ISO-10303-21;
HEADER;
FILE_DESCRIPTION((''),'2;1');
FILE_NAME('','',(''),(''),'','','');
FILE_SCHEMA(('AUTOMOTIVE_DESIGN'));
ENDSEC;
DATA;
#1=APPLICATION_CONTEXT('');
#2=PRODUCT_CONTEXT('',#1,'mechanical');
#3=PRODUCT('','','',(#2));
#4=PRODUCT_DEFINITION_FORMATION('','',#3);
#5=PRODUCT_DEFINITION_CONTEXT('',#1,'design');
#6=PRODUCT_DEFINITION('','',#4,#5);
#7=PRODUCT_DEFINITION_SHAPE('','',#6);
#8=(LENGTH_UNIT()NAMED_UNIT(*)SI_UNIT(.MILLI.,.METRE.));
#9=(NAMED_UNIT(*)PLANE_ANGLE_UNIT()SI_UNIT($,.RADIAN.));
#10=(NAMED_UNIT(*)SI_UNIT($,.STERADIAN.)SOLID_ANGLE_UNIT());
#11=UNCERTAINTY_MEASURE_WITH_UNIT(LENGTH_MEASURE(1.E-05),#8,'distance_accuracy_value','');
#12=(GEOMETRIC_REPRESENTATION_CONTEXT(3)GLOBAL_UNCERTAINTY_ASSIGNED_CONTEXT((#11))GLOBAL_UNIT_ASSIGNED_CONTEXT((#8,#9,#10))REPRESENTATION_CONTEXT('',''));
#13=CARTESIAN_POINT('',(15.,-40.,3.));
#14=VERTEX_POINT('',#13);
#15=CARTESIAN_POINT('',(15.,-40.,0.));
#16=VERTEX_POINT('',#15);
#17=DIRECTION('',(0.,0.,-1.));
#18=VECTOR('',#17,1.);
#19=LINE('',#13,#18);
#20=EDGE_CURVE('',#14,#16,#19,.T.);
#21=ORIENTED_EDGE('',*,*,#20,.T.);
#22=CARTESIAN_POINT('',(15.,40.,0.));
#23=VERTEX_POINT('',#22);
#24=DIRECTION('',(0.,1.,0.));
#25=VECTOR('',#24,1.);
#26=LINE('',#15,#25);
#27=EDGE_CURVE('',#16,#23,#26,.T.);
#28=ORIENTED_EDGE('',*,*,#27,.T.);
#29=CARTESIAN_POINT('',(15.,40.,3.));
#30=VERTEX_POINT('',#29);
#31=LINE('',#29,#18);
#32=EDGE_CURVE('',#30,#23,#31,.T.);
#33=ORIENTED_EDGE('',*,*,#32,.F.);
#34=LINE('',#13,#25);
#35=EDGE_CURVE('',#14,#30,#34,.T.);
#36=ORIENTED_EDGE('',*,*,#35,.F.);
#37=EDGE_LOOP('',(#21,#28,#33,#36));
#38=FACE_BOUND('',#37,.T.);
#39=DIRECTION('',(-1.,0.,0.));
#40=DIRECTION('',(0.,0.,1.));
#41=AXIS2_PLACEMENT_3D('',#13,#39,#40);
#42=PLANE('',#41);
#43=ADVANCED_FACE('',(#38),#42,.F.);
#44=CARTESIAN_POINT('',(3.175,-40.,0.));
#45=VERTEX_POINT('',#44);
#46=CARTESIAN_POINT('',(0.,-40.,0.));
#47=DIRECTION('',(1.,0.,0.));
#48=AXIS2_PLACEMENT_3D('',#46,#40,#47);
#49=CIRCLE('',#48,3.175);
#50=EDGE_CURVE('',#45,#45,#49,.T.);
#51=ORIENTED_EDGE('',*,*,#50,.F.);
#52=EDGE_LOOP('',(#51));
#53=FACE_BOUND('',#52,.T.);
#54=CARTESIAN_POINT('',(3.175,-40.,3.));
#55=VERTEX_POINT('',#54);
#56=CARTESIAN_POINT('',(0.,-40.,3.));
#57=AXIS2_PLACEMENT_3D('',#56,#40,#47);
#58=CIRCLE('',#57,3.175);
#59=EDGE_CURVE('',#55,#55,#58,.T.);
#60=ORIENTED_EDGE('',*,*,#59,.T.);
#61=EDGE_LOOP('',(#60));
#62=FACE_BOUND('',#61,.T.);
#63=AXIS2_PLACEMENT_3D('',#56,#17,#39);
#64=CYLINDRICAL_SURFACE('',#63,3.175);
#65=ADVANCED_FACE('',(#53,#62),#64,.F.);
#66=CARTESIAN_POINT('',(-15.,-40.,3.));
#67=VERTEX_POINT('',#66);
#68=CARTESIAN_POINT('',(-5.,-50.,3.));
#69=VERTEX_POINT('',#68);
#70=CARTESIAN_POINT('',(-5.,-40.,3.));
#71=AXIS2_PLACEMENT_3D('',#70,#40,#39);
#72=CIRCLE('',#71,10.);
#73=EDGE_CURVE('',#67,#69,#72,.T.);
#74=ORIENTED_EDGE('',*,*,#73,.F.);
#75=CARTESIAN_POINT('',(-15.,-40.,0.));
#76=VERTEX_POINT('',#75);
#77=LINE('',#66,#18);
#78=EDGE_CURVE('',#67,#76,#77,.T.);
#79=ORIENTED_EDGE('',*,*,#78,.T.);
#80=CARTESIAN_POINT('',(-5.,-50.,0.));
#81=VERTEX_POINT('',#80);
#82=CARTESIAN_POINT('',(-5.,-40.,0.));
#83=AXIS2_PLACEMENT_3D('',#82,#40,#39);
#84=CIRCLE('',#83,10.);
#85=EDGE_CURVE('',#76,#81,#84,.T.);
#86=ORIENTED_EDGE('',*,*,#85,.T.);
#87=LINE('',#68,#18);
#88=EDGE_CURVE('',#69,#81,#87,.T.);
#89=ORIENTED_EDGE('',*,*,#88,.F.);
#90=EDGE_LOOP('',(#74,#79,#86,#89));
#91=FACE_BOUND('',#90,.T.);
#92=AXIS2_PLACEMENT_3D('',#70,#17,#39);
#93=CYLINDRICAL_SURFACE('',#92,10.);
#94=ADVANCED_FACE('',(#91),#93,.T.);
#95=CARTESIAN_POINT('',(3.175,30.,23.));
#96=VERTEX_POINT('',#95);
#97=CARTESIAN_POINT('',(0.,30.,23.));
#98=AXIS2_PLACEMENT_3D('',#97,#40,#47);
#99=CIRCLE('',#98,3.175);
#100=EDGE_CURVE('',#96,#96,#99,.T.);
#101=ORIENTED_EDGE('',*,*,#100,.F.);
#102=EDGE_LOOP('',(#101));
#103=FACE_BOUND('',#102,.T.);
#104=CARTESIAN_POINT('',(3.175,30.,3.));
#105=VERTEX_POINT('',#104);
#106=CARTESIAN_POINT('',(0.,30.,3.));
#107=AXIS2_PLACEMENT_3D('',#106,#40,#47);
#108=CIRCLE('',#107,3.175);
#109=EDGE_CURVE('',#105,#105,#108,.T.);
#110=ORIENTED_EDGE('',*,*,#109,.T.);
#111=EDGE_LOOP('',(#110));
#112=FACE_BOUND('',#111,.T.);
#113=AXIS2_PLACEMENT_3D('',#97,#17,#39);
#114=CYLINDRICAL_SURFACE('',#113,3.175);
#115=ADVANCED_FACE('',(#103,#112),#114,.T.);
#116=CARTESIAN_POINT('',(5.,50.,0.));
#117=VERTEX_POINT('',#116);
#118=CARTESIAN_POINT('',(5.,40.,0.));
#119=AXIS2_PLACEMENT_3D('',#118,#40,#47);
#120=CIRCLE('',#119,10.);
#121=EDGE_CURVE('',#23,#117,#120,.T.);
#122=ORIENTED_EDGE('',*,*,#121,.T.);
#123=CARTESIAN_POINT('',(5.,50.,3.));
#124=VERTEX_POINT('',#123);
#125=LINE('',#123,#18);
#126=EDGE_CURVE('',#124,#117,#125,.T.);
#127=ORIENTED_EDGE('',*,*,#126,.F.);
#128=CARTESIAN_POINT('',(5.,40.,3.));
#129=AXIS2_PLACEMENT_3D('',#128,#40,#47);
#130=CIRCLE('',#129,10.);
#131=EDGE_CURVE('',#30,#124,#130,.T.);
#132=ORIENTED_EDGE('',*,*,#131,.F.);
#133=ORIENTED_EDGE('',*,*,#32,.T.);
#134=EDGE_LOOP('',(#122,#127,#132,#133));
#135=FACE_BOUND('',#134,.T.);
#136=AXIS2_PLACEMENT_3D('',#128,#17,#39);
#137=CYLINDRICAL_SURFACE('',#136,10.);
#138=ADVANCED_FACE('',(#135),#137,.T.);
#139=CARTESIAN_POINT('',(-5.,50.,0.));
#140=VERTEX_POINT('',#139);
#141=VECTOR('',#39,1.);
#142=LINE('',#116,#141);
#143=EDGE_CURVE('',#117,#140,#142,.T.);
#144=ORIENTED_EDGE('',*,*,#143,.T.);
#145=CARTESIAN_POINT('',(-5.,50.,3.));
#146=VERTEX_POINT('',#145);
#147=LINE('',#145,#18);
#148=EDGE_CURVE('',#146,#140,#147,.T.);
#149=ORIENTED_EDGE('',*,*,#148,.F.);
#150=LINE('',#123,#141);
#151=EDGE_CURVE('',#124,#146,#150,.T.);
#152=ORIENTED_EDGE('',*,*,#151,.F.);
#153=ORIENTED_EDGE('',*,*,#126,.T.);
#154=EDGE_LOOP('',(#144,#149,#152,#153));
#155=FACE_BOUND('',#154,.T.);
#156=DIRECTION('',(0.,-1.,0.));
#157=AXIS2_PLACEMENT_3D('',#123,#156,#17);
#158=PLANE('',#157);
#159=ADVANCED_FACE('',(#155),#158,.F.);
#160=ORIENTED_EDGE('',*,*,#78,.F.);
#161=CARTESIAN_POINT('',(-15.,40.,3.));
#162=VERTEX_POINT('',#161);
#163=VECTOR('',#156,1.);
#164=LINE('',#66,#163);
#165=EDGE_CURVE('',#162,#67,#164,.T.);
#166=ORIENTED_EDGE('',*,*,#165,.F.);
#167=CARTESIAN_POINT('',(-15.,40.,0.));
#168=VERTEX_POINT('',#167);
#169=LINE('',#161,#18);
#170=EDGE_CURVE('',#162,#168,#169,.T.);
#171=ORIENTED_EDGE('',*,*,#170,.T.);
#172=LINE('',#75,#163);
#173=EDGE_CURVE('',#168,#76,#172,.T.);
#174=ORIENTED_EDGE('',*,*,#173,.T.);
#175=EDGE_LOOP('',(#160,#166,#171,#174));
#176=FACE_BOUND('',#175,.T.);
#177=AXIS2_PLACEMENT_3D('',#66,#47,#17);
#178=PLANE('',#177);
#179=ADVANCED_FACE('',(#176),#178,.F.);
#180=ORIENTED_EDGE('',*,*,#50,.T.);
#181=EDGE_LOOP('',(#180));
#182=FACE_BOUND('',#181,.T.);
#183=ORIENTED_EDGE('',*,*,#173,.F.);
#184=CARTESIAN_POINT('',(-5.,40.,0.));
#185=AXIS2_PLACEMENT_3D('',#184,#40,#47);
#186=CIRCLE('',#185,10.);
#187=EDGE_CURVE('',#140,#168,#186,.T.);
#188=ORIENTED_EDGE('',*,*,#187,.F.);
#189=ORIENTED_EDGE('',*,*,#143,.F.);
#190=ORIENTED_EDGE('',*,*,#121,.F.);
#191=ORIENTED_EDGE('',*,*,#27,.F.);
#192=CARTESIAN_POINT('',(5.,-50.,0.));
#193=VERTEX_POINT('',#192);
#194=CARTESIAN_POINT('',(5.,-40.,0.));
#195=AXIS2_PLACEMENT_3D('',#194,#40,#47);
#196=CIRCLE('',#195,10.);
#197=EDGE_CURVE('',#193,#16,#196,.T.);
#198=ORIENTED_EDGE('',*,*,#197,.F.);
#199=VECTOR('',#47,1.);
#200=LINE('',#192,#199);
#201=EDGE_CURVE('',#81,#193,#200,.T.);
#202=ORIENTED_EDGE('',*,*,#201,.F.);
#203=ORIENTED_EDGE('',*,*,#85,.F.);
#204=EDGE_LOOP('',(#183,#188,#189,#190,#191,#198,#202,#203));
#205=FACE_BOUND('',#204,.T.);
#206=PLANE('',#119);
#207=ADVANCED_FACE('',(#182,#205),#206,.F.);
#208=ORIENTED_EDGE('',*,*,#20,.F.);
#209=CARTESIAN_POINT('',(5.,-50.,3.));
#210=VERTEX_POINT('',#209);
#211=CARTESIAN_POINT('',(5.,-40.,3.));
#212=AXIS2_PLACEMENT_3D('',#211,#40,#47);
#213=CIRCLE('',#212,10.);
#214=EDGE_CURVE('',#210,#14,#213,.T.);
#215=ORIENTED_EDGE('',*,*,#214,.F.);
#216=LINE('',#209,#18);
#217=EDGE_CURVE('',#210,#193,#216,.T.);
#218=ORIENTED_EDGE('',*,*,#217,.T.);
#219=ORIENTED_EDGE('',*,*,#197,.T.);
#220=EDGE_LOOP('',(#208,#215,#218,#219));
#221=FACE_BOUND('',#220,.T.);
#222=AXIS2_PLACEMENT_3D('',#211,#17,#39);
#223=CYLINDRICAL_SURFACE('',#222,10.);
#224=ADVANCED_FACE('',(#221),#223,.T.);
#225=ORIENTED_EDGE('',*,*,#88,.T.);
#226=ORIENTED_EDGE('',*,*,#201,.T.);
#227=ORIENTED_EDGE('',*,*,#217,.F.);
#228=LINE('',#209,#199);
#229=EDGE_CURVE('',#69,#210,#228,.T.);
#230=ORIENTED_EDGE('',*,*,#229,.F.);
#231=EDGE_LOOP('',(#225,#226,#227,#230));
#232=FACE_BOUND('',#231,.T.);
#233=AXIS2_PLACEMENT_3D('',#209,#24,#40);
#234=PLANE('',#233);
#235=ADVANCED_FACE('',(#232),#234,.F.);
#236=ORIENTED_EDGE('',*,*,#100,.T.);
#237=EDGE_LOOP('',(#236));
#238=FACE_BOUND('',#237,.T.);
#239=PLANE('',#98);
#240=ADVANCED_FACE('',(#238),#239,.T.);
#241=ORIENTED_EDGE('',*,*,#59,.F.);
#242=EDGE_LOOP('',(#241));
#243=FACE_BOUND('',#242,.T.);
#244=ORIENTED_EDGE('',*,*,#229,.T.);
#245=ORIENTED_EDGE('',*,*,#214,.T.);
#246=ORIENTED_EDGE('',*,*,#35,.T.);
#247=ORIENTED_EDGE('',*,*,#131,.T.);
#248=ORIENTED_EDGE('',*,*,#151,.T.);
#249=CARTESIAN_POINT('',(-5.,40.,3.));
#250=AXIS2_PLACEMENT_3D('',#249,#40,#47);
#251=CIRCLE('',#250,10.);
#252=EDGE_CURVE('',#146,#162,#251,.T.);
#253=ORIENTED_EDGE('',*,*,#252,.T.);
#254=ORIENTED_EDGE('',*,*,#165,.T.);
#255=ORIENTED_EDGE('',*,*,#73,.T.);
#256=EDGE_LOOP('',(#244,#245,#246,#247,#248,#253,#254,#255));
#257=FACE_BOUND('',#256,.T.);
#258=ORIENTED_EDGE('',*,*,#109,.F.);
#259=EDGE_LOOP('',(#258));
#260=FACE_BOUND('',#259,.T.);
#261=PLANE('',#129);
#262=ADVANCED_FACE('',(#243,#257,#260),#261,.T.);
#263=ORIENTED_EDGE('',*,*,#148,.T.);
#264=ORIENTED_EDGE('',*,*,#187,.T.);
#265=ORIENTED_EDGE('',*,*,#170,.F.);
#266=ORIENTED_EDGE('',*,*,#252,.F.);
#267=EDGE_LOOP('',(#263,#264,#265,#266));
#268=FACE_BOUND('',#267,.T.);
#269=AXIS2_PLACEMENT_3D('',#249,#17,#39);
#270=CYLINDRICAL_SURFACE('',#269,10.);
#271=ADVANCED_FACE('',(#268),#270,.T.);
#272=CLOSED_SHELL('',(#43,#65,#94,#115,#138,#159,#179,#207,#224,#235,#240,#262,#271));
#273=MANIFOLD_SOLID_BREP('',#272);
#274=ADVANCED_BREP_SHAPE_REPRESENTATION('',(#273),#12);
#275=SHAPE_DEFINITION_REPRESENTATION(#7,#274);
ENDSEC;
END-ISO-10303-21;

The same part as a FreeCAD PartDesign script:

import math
import FreeCAD as App
import Part
import Sketcher
from FreeCAD import Vector

doc = App.newDocument("Part")
body = doc.addObject("PartDesign::Body", "Body")

sketch1 = body.newObject("Sketcher::SketchObject", "Sketch")
sketch1.AttachmentSupport = (doc.getObject("XY_Plane"), [""])
sketch1.MapMode = "FlatFace"
sketch1.addGeometry([
    Part.LineSegment(Vector(-5, -50, 0), Vector(5, -50, 0)),
    Part.ArcOfCircle(Part.Circle(Vector(5, -40, 0), Vector(0, 0, 1), 10), math.radians(-90), math.radians(0)),
    Part.LineSegment(Vector(15, -40, 0), Vector(15, 40, 0)),
    Part.ArcOfCircle(Part.Circle(Vector(5, 40, 0), Vector(0, 0, 1), 10), math.radians(0), math.radians(90)),
    Part.LineSegment(Vector(5, 50, 0), Vector(-5, 50, 0)),
    Part.ArcOfCircle(Part.Circle(Vector(-5, 40, 0), Vector(0, 0, 1), 10), math.radians(90), math.radians(180)),
    Part.LineSegment(Vector(-15, 40, 0), Vector(-15, -40, 0)),
    Part.ArcOfCircle(Part.Circle(Vector(-5, -40, 0), Vector(0, 0, 1), 10), math.radians(180), math.radians(270)),
    Part.Circle(Vector(0, -40, 0), Vector(0, 0, 1), 3.2),
], False)
sketch1.addConstraint([
    Sketcher.Constraint("Tangent", 0, 2, 1, 1),
    Sketcher.Constraint("Tangent", 1, 2, 2, 1),
    Sketcher.Constraint("Tangent", 2, 2, 3, 1),
    Sketcher.Constraint("Tangent", 3, 2, 4, 1),
    Sketcher.Constraint("Tangent", 4, 2, 5, 1),
    Sketcher.Constraint("Tangent", 5, 2, 6, 1),
    Sketcher.Constraint("Tangent", 6, 2, 7, 1),
    Sketcher.Constraint("Tangent", 7, 2, 0, 1),
    Sketcher.Constraint("Horizontal", 0),
    Sketcher.Constraint("Vertical", 2),
    Sketcher.Constraint("Horizontal", 4),
    Sketcher.Constraint("Vertical", 6),
    Sketcher.Constraint("Equal", 1, 3),
    Sketcher.Constraint("Equal", 3, 5),
    Sketcher.Constraint("Equal", 5, 7),
    Sketcher.Constraint("Symmetric", 1, 3, 5, 3, -1, 1),
    Sketcher.Constraint("PointOnObject", 8, 3, -2),
    Sketcher.Constraint("Horizontal", 7, 3, 8, 3),
    Sketcher.Constraint("Radius", 1, 10.0),
    Sketcher.Constraint("Diameter", 8, 6.35),
    Sketcher.Constraint("DistanceX", 0, 1, 0, 2, 10.0),
    Sketcher.Constraint("DistanceY", 2, 1, 2, 2, 80.0),
])
pad1 = body.newObject("PartDesign::Pad", "Pad")
pad1.Profile = sketch1
pad1.Length = 3

sketch2 = body.newObject("Sketcher::SketchObject", "Sketch001")
sketch2.AttachmentSupport = (doc.getObject("XY_Plane"), [""])
sketch2.MapMode = "FlatFace"
sketch2.AttachmentOffset = App.Placement(Vector(0, 0, 3), App.Rotation())
sketch2.addGeometry(Part.Circle(Vector(0, 30, 0), Vector(0, 0, 1), 3.2), False)
sketch2.addConstraint([
    Sketcher.Constraint("PointOnObject", 0, 3, -2),
    Sketcher.Constraint("Diameter", 0, 6.35),
    Sketcher.Constraint("DistanceY", -1, 1, 0, 3, 30.0),
])
pad2 = body.newObject("PartDesign::Pad", "Pad001")
pad2.Profile = sketch2
pad2.Length = 20

doc.recompute()
